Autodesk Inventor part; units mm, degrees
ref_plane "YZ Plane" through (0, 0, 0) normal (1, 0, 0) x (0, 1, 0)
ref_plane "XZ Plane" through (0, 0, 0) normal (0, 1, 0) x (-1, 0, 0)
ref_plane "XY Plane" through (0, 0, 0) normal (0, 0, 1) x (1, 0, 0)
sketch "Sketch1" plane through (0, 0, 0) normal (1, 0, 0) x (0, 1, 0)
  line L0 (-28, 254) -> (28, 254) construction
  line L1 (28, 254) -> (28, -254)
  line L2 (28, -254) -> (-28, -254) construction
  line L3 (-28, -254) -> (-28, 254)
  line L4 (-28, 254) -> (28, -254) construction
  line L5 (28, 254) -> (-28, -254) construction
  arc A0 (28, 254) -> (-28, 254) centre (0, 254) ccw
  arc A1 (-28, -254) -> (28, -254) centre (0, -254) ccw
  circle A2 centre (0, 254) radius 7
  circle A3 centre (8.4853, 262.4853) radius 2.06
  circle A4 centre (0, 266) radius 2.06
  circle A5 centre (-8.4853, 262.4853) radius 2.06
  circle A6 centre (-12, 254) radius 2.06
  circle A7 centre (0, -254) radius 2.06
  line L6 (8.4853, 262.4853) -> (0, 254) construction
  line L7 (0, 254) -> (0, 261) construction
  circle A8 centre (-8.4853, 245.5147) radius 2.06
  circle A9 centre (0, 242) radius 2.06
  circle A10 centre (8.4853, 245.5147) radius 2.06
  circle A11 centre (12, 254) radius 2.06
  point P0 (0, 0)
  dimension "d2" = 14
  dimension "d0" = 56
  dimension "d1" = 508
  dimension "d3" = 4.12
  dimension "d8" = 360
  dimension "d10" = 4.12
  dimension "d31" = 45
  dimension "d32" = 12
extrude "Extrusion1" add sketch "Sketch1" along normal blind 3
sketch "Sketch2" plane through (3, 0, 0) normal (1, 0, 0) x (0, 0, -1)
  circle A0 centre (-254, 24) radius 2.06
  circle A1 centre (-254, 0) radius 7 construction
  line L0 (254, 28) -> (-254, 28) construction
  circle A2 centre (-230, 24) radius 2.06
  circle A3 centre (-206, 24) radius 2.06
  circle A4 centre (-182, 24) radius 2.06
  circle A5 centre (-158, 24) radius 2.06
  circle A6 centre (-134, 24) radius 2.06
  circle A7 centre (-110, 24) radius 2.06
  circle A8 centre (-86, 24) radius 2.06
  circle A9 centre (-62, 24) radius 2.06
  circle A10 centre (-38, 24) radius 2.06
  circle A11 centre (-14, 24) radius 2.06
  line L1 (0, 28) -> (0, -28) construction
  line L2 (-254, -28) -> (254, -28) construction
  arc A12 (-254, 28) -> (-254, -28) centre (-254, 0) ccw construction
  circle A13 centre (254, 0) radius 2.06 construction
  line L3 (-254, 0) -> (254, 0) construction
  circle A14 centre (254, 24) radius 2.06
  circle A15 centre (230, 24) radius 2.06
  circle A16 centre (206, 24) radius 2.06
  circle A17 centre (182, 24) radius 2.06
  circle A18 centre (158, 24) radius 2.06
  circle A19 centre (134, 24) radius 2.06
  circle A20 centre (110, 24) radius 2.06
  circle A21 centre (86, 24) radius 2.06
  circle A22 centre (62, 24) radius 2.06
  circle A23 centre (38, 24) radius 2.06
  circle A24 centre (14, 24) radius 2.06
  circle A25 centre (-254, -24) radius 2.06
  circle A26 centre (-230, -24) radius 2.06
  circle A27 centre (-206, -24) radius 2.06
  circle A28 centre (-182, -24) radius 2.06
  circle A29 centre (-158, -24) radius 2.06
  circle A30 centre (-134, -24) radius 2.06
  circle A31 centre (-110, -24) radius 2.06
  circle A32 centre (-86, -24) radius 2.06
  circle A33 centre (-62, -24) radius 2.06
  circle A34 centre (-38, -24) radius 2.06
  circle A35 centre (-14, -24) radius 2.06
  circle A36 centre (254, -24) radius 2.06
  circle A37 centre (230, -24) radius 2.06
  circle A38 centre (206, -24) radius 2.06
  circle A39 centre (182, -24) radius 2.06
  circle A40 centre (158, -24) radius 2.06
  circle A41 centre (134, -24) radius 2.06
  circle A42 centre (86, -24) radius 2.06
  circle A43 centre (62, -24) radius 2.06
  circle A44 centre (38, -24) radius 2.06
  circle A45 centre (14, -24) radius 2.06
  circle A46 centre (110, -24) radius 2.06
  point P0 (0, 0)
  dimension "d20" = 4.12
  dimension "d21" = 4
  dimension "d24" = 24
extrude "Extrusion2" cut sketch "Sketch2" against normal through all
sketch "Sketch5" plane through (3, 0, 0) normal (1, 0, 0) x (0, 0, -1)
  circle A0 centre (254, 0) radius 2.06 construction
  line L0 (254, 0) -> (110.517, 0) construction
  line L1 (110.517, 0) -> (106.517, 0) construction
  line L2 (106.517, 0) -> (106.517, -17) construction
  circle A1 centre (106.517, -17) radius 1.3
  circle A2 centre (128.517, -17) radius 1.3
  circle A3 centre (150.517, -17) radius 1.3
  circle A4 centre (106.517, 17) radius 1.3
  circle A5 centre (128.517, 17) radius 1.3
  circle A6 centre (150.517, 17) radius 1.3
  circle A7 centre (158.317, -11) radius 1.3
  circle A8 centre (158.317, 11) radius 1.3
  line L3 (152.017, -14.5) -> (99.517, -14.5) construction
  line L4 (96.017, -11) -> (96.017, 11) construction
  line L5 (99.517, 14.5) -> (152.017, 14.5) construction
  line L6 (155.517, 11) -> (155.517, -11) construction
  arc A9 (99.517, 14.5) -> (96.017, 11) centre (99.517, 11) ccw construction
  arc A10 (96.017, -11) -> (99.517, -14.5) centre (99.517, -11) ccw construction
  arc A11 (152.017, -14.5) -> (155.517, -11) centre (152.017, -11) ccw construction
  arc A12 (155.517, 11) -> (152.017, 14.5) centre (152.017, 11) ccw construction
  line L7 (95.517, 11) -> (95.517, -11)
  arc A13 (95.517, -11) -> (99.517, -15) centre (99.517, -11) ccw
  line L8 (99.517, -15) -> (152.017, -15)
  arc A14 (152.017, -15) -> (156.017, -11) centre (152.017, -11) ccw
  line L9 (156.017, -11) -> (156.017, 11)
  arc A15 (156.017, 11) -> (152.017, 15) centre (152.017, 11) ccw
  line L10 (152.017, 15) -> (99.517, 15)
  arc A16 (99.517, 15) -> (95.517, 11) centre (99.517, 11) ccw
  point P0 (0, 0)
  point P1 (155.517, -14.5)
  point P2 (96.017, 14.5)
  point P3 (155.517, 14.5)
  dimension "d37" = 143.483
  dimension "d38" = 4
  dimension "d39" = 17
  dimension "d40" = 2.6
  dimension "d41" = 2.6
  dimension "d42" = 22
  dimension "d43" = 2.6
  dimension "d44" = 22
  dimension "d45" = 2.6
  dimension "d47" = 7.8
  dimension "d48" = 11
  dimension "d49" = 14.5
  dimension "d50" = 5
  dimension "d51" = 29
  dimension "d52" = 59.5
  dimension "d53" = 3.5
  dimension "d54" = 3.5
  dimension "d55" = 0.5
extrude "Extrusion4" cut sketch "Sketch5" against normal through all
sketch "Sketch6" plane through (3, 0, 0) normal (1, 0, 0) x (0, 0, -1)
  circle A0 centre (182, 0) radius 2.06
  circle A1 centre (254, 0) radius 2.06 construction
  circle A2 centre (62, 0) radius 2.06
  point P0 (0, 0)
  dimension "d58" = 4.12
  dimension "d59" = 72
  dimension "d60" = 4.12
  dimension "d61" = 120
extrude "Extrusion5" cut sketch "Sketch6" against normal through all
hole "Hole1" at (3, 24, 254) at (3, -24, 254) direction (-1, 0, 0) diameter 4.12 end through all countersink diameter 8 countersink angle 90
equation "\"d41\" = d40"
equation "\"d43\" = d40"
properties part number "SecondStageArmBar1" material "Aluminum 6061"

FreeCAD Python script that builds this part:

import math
import FreeCAD as App
import Part
import Sketcher

doc = App.newDocument("Part")
params = doc.addObject("Spreadsheet::Sheet", "Params")
for row, (alias, value) in enumerate([
    ("sketch1_diameter", "14 mm"),
    ("sketch1_radius", "28 mm"),
    ("sketch1_diameter2", "4.12 mm"),
    ("sketch1_height", "508 mm"),
    ("pad1_length", "3 mm"),
    ("sketch2_diameter", "4.12 mm"),
    ("sketch3_radius", "4 mm"),
    ("sketch3_diameter", "2.6 mm"),
    ("sketch3_width", "22 mm"),
    ("sketch3_height", "52.5 mm"),
    ("sketch4_diameter", "4.12 mm"),
    ("sketch5_diameter", "4.12 mm"),
    ("hole_diameter", "4.12 mm"),
    ("hole_csink_diameter", "8 mm"),
], start=1):
    params.set(f"A{row}", alias)
    params.set(f"B{row}", "=" + value)
    params.setAlias(f"B{row}", alias)

body = doc.addObject("PartDesign::Body", "Body")

sketch1 = doc.addObject("Sketcher::SketchObject", "Sketch")
body.addObject(sketch1)
sketch1.AttachmentSupport = (doc.YZ_Plane, [""])
sketch1.MapMode = "FlatFace"
sketch1.addGeometry([
    Part.LineSegment(App.Vector(28, -254, 0), App.Vector(28, 254, 0)),
    Part.ArcOfCircle(Part.Circle(App.Vector(0, 254, 0), App.Vector(0, 0, 1), 28), math.radians(0), math.radians(180)),
    Part.LineSegment(App.Vector(-28, 254, 0), App.Vector(-28, -254, 0)),
    Part.ArcOfCircle(Part.Circle(App.Vector(0, -254, 0), App.Vector(0, 0, 1), 28), math.radians(180), math.radians(360)),
    Part.Circle(App.Vector(0, -254, 0), App.Vector(0, 0, 1), 2.1),
    Part.Circle(App.Vector(-8.5, 245.5, 0), App.Vector(0, 0, 1), 2.1),
    Part.Circle(App.Vector(-12, 254, 0), App.Vector(0, 0, 1), 2.1),
    Part.Circle(App.Vector(-8.5, 262.5, 0), App.Vector(0, 0, 1), 2.1),
    Part.Circle(App.Vector(0, 242, 0), App.Vector(0, 0, 1), 2.1),
    Part.Circle(App.Vector(0, 254, 0), App.Vector(0, 0, 1), 7),
    Part.Circle(App.Vector(0, 266, 0), App.Vector(0, 0, 1), 2.1),
    Part.Circle(App.Vector(8.5, 245.5, 0), App.Vector(0, 0, 1), 2.1),
    Part.Circle(App.Vector(8.5, 262.5, 0), App.Vector(0, 0, 1), 2.1),
    Part.Circle(App.Vector(12, 254, 0), App.Vector(0, 0, 1), 2.1),
], False)
sketch1.addConstraint([
    Sketcher.Constraint("Tangent", 0, 2, 1, 1),
    Sketcher.Constraint("Tangent", 1, 2, 2, 1),
    Sketcher.Constraint("Tangent", 2, 2, 3, 1),
    Sketcher.Constraint("Tangent", 3, 2, 0, 1),
    Sketcher.Constraint("Vertical", 0),
    Sketcher.Constraint("Vertical", 2),
    Sketcher.Constraint("Coincident", 4, 3, 3, 3),
    Sketcher.Constraint("Coincident", 9, 3, 1, 3),
    Sketcher.Constraint("Equal", 4, 5),
    Sketcher.Constraint("Equal", 5, 6),
    Sketcher.Constraint("Equal", 6, 7),
    Sketcher.Constraint("Equal", 7, 8),
    Sketcher.Constraint("Equal", 8, 10),
    Sketcher.Constraint("Equal", 10, 11),
    Sketcher.Constraint("Equal", 11, 12),
    Sketcher.Constraint("Equal", 12, 13),
    Sketcher.Constraint("Symmetric", 1, 3, 3, 3, -1, 1),
    Sketcher.Constraint("Symmetric", 5, 3, 11, 3, -2),
    Sketcher.Constraint("Symmetric", 7, 3, 12, 3, -2),
    Sketcher.Constraint("Symmetric", 6, 3, 13, 3, -2),
    Sketcher.Constraint("PointOnObject", 8, 3, -2),
    Sketcher.Constraint("PointOnObject", 10, 3, -2),
    Sketcher.Constraint("Horizontal", 1, 3, 6, 3),
    Sketcher.Constraint("Vertical", 5, 3, 7, 3),
    Sketcher.Constraint("Diameter", 9, 14.0),
    Sketcher.Constraint("Radius", 1, 28.0),
    Sketcher.Constraint("Diameter", 4, 4.12),
    Sketcher.Constraint("DistanceY", 0, 1, 0, 2, 508.0),
    Sketcher.Constraint("DistanceX", 6, 3, -1, 1, 12.0),
    Sketcher.Constraint("DistanceY", 8, 3, 1, 3, 12.0),
    Sketcher.Constraint("DistanceY", 1, 3, 10, 3, 12.0),
    Sketcher.Constraint("DistanceX", 5, 3, -1, 1, 8.4853),
    Sketcher.Constraint("DistanceY", -1, 1, 5, 3, 245.5147),
    Sketcher.Constraint("DistanceY", -1, 1, 7, 3, 262.4853),
])
sketch1.setExpression("Constraints[24]", "Params.sketch1_diameter")
sketch1.setExpression("Constraints[25]", "Params.sketch1_radius")
sketch1.setExpression("Constraints[26]", "Params.sketch1_diameter2")
sketch1.setExpression("Constraints[27]", "Params.sketch1_height")
pad1 = doc.addObject("PartDesign::Pad", "Pad")
body.addObject(pad1)
pad1.Profile = sketch1
pad1.setExpression("Length", "Params.pad1_length")

sketch2 = doc.addObject("Sketcher::SketchObject", "Sketch001")
body.addObject(sketch2)
sketch2.AttachmentSupport = (doc.YZ_Plane, [""])
sketch2.MapMode = "FlatFace"
sketch2.AttachmentOffset = App.Placement(App.Vector(0, 0, 3), App.Rotation())
sketch2.addGeometry([
    Part.Circle(App.Vector(24, 254, 0), App.Vector(0, 0, 1), 2.1),
    Part.Circle(App.Vector(24, 230, 0), App.Vector(0, 0, 1), 2.1),
    Part.Circle(App.Vector(24, 206, 0), App.Vector(0, 0, 1), 2.1),
    Part.Circle(App.Vector(24, 182, 0), App.Vector(0, 0, 1), 2.1),
    Part.Circle(App.Vector(24, 158, 0), App.Vector(0, 0, 1), 2.1),
    Part.Circle(App.Vector(24, 134, 0), App.Vector(0, 0, 1), 2.1),
    Part.Circle(App.Vector(24, 110, 0), App.Vector(0, 0, 1), 2.1),
    Part.Circle(App.Vector(24, 86, 0), App.Vector(0, 0, 1), 2.1),
    Part.Circle(App.Vector(24, 62, 0), App.Vector(0, 0, 1), 2.1),
    Part.Circle(App.Vector(24, 38, 0), App.Vector(0, 0, 1), 2.1),
    Part.Circle(App.Vector(24, 14, 0), App.Vector(0, 0, 1), 2.1),
    Part.Circle(App.Vector(24, -254, 0), App.Vector(0, 0, 1), 2.1),
    Part.Circle(App.Vector(24, -230, 0), App.Vector(0, 0, 1), 2.1),
    Part.Circle(App.Vector(24, -206, 0), App.Vector(0, 0, 1), 2.1),
    Part.Circle(App.Vector(24, -182, 0), App.Vector(0, 0, 1), 2.1),
    Part.Circle(App.Vector(24, -158, 0), App.Vector(0, 0, 1), 2.1),
    Part.Circle(App.Vector(24, -134, 0), App.Vector(0, 0, 1), 2.1),
    Part.Circle(App.Vector(24, -110, 0), App.Vector(0, 0, 1), 2.1),
    Part.Circle(App.Vector(24, -86, 0), App.Vector(0, 0, 1), 2.1),
    Part.Circle(App.Vector(24, -62, 0), App.Vector(0, 0, 1), 2.1),
    Part.Circle(App.Vector(24, -38, 0), App.Vector(0, 0, 1), 2.1),
    Part.Circle(App.Vector(24, -14, 0), App.Vector(0, 0, 1), 2.1),
    Part.Circle(App.Vector(-24, 254, 0), App.Vector(0, 0, 1), 2.1),
    Part.Circle(App.Vector(-24, 230, 0), App.Vector(0, 0, 1), 2.1),
    Part.Circle(App.Vector(-24, 206, 0), App.Vector(0, 0, 1), 2.1),
    Part.Circle(App.Vector(-24, 182, 0), App.Vector(0, 0, 1), 2.1),
    Part.Circle(App.Vector(-24, 158, 0), App.Vector(0, 0, 1), 2.1),
    Part.Circle(App.Vector(-24, 134, 0), App.Vector(0, 0, 1), 2.1),
    Part.Circle(App.Vector(-24, 110, 0), App.Vector(0, 0, 1), 2.1),
    Part.Circle(App.Vector(-24, 86, 0), App.Vector(0, 0, 1), 2.1),
    Part.Circle(App.Vector(-24, 62, 0), App.Vector(0, 0, 1), 2.1),
    Part.Circle(App.Vector(-24, 38, 0), App.Vector(0, 0, 1), 2.1),
    Part.Circle(App.Vector(-24, 14, 0), App.Vector(0, 0, 1), 2.1),
    Part.Circle(App.Vector(-24, -254, 0), App.Vector(0, 0, 1), 2.1),
    Part.Circle(App.Vector(-24, -230, 0), App.Vector(0, 0, 1), 2.1),
    Part.Circle(App.Vector(-24, -206, 0), App.Vector(0, 0, 1), 2.1),
    Part.Circle(App.Vector(-24, -182, 0), App.Vector(0, 0, 1), 2.1),
    Part.Circle(App.Vector(-24, -158, 0), App.Vector(0, 0, 1), 2.1),
    Part.Circle(App.Vector(-24, -134, 0), App.Vector(0, 0, 1), 2.1),
    Part.Circle(App.Vector(-24, -86, 0), App.Vector(0, 0, 1), 2.1),
    Part.Circle(App.Vector(-24, -62, 0), App.Vector(0, 0, 1), 2.1),
    Part.Circle(App.Vector(-24, -38, 0), App.Vector(0, 0, 1), 2.1),
    Part.Circle(App.Vector(-24, -14, 0), App.Vector(0, 0, 1), 2.1),
    Part.Circle(App.Vector(-24, -110, 0), App.Vector(0, 0, 1), 2.1),
], False)
sketch2.addConstraint([
    Sketcher.Constraint("Equal", 0, 1),
    Sketcher.Constraint("Equal", 1, 2),
    Sketcher.Constraint("Equal", 2, 3),
    Sketcher.Constraint("Equal", 3, 4),
    Sketcher.Constraint("Equal", 4, 5),
    Sketcher.Constraint("Equal", 5, 6),
    Sketcher.Constraint("Equal", 6, 7),
    Sketcher.Constraint("Equal", 7, 8),
    Sketcher.Constraint("Equal", 8, 9),
    Sketcher.Constraint("Equal", 9, 10),
    Sketcher.Constraint("Equal", 10, 11),
    Sketcher.Constraint("Equal", 11, 12),
    Sketcher.Constraint("Equal", 12, 13),
    Sketcher.Constraint("Equal", 13, 14),
    Sketcher.Constraint("Equal", 14, 15),
    Sketcher.Constraint("Equal", 15, 16),
    Sketcher.Constraint("Equal", 16, 17),
    Sketcher.Constraint("Equal", 17, 18),
    Sketcher.Constraint("Equal", 18, 19),
    Sketcher.Constraint("Equal", 19, 20),
    Sketcher.Constraint("Equal", 20, 21),
    Sketcher.Constraint("Equal", 21, 22),
    Sketcher.Constraint("Equal", 22, 23),
    Sketcher.Constraint("Equal", 23, 24),
    Sketcher.Constraint("Equal", 24, 25),
    Sketcher.Constraint("Equal", 25, 26),
    Sketcher.Constraint("Equal", 26, 27),
    Sketcher.Constraint("Equal", 27, 28),
    Sketcher.Constraint("Equal", 28, 29),
    Sketcher.Constraint("Equal", 29, 30),
    Sketcher.Constraint("Equal", 30, 31),
    Sketcher.Constraint("Equal", 31, 32),
    Sketcher.Constraint("Equal", 32, 33),
    Sketcher.Constraint("Equal", 33, 34),
    Sketcher.Constraint("Equal", 34, 35),
    Sketcher.Constraint("Equal", 35, 36),
    Sketcher.Constraint("Equal", 36, 37),
    Sketcher.Constraint("Equal", 37, 38),
    Sketcher.Constraint("Equal", 38, 39),
    Sketcher.Constraint("Equal", 39, 40),
    Sketcher.Constraint("Equal", 40, 41),
    Sketcher.Constraint("Equal", 41, 42),
    Sketcher.Constraint("Equal", 42, 43),
    Sketcher.Constraint("Symmetric", 11, 3, 22, 3, -1, 1),
    Sketcher.Constraint("Symmetric", 12, 3, 23, 3, -1, 1),
    Sketcher.Constraint("Symmetric", 13, 3, 24, 3, -1, 1),
    Sketcher.Constraint("Symmetric", 14, 3, 25, 3, -1, 1),
    Sketcher.Constraint("Symmetric", 15, 3, 26, 3, -1, 1),
    Sketcher.Constraint("Symmetric", 16, 3, 27, 3, -1, 1),
    Sketcher.Constraint("Symmetric", 17, 3, 28, 3, -1, 1),
    Sketcher.Constraint("Symmetric", 18, 3, 29, 3, -1, 1),
    Sketcher.Constraint("Symmetric", 19, 3, 30, 3, -1, 1),
    Sketcher.Constraint("Symmetric", 20, 3, 31, 3, -1, 1),
    Sketcher.Constraint("Symmetric", 21, 3, 32, 3, -1, 1),
    Sketcher.Constraint("Symmetric", 0, 3, 33, 3, -1, 1),
    Sketcher.Constraint("Symmetric", 1, 3, 34, 3, -1, 1),
    Sketcher.Constraint("Symmetric", 2, 3, 35, 3, -1, 1),
    Sketcher.Constraint("Symmetric", 3, 3, 36, 3, -1, 1),
    Sketcher.Constraint("Symmetric", 4, 3, 37, 3, -1, 1),
    Sketcher.Constraint("Symmetric", 5, 3, 38, 3, -1, 1),
    Sketcher.Constraint("Symmetric", 7, 3, 39, 3, -1, 1),
    Sketcher.Constraint("Symmetric", 8, 3, 40, 3, -1, 1),
    Sketcher.Constraint("Symmetric", 9, 3, 41, 3, -1, 1),
    Sketcher.Constraint("Symmetric", 10, 3, 42, 3, -1, 1),
    Sketcher.Constraint("Symmetric", 6, 3, 43, 3, -1, 1),
    Sketcher.Constraint("Symmetric", 0, 3, 22, 3, -2),
    Sketcher.Constraint("Symmetric", 1, 3, 23, 3, -2),
    Sketcher.Constraint("Symmetric", 2, 3, 24, 3, -2),
    Sketcher.Constraint("Symmetric", 3, 3, 25, 3, -2),
    Sketcher.Constraint("Symmetric", 4, 3, 26, 3, -2),
    Sketcher.Constraint("Symmetric", 5, 3, 27, 3, -2),
    Sketcher.Constraint("Symmetric", 6, 3, 28, 3, -2),
    Sketcher.Constraint("Symmetric", 7, 3, 29, 3, -2),
    Sketcher.Constraint("Symmetric", 8, 3, 30, 3, -2),
    Sketcher.Constraint("Symmetric", 9, 3, 31, 3, -2),
    Sketcher.Constraint("Symmetric", 10, 3, 32, 3, -2),
    Sketcher.Constraint("Vertical", 0, 3, 1, 3),
    Sketcher.Constraint("Vertical", 1, 3, 2, 3),
    Sketcher.Constraint("Vertical", 2, 3, 3, 3),
    Sketcher.Constraint("Vertical", 3, 3, 4, 3),
    Sketcher.Constraint("Vertical", 4, 3, 5, 3),
    Sketcher.Constraint("Vertical", 5, 3, 6, 3),
    Sketcher.Constraint("Vertical", 6, 3, 7, 3),
    Sketcher.Constraint("Vertical", 7, 3, 8, 3),
    Sketcher.Constraint("Vertical", 8, 3, 9, 3),
    Sketcher.Constraint("Vertical", 9, 3, 10, 3),
    Sketcher.Constraint("Diameter", 0, 4.12),
    Sketcher.Constraint("DistanceX", -1, 1, 0, 3, 24.0),
    Sketcher.Constraint("DistanceY", 1, 3, 0, 3, 24.0),
    Sketcher.Constraint("DistanceY", 2, 3, 1, 3, 24.0),
    Sketcher.Constraint("DistanceY", 3, 3, 2, 3, 24.0),
    Sketcher.Constraint("DistanceY", 4, 3, 3, 3, 24.0),
    Sketcher.Constraint("DistanceY", 5, 3, 4, 3, 24.0),
    Sketcher.Constraint("DistanceY", 6, 3, 5, 3, 24.0),
    Sketcher.Constraint("DistanceY", 7, 3, 6, 3, 24.0),
    Sketcher.Constraint("DistanceY", 8, 3, 7, 3, 24.0),
    Sketcher.Constraint("DistanceY", 9, 3, 8, 3, 24.0),
    Sketcher.Constraint("DistanceY", 10, 3, 9, 3, 24.0),
    Sketcher.Constraint("DistanceY", -1, 1, 0, 3, 254.0),
])
sketch2.setExpression("Constraints[86]", "Params.sketch2_diameter")
pocket1 = doc.addObject("PartDesign::Pocket", "Pocket")
body.addObject(pocket1)
pocket1.Profile = sketch2
pocket1.Type = "ThroughAll"

sketch3 = doc.addObject("Sketcher::SketchObject", "Sketch002")
body.addObject(sketch3)
sketch3.AttachmentSupport = (doc.YZ_Plane, [""])
sketch3.MapMode = "FlatFace"
sketch3.AttachmentOffset = App.Placement(App.Vector(0, 0, 3), App.Rotation())
sketch3.addGeometry([
    Part.Circle(App.Vector(-17, -106.5, 0), App.Vector(0, 0, 1), 1.3),
    Part.Circle(App.Vector(-17, -128.5, 0), App.Vector(0, 0, 1), 1.3),
    Part.Circle(App.Vector(-17, -150.5, 0), App.Vector(0, 0, 1), 1.3),
    Part.Circle(App.Vector(17, -106.5, 0), App.Vector(0, 0, 1), 1.3),
    Part.Circle(App.Vector(17, -128.5, 0), App.Vector(0, 0, 1), 1.3),
    Part.Circle(App.Vector(17, -150.5, 0), App.Vector(0, 0, 1), 1.3),
    Part.Circle(App.Vector(-11, -158.3, 0), App.Vector(0, 0, 1), 1.3),
    Part.Circle(App.Vector(11, -158.3, 0), App.Vector(0, 0, 1), 1.3),
    Part.ArcOfCircle(Part.Circle(App.Vector(11, -99.5, 0), App.Vector(0, 0, 1), 4), math.radians(0), math.radians(90)),
    Part.LineSegment(App.Vector(11, -95.5, 0), App.Vector(-11, -95.5, 0)),
    Part.ArcOfCircle(Part.Circle(App.Vector(-11, -99.5, 0), App.Vector(0, 0, 1), 4), math.radians(90), math.radians(180)),
    Part.LineSegment(App.Vector(-15, -99.5, 0), App.Vector(-15, -152, 0)),
    Part.ArcOfCircle(Part.Circle(App.Vector(-11, -152, 0), App.Vector(0, 0, 1), 4), math.radians(180), math.radians(270)),
    Part.LineSegment(App.Vector(-11, -156, 0), App.Vector(11, -156, 0)),
    Part.ArcOfCircle(Part.Circle(App.Vector(11, -152, 0), App.Vector(0, 0, 1), 4), math.radians(-90), math.radians(0)),
    Part.LineSegment(App.Vector(15, -152, 0), App.Vector(15, -99.5, 0)),
], False)
sketch3.addConstraint([
    Sketcher.Constraint("Tangent", 8, 2, 9, 1),
    Sketcher.Constraint("Tangent", 9, 2, 10, 1),
    Sketcher.Constraint("Tangent", 10, 2, 11, 1),
    Sketcher.Constraint("Tangent", 11, 2, 12, 1),
    Sketcher.Constraint("Tangent", 12, 2, 13, 1),
    Sketcher.Constraint("Tangent", 13, 2, 14, 1),
    Sketcher.Constraint("Tangent", 14, 2, 15, 1),
    Sketcher.Constraint("Tangent", 15, 2, 8, 1),
    Sketcher.Constraint("Horizontal", 9),
    Sketcher.Constraint("Vertical", 11),
    Sketcher.Constraint("Horizontal", 13),
    Sketcher.Constraint("Vertical", 15),
    Sketcher.Constraint("Equal", 0, 1),
    Sketcher.Constraint("Equal", 1, 2),
    Sketcher.Constraint("Equal", 2, 3),
    Sketcher.Constraint("Equal", 3, 4),
    Sketcher.Constraint("Equal", 4, 5),
    Sketcher.Constraint("Equal", 5, 6),
    Sketcher.Constraint("Equal", 6, 7),
    Sketcher.Constraint("Equal", 8, 10),
    Sketcher.Constraint("Equal", 10, 12),
    Sketcher.Constraint("Equal", 12, 14),
    Sketcher.Constraint("Symmetric", 0, 3, 3, 3, -2),
    Sketcher.Constraint("Symmetric", 1, 3, 4, 3, -2),
    Sketcher.Constraint("Symmetric", 2, 3, 5, 3, -2),
    Sketcher.Constraint("Symmetric", 6, 3, 7, 3, -2),
    Sketcher.Constraint("Vertical", 0, 3, 1, 3),
    Sketcher.Constraint("Vertical", 1, 3, 2, 3),
    Sketcher.Constraint("Vertical", 7, 3, 8, 3),
    Sketcher.Constraint("Vertical", 6, 3, 10, 3),
    Sketcher.Constraint("Radius", 8, 4.0),
    Sketcher.Constraint("Diameter", 0, 2.6),
    Sketcher.Constraint("DistanceX", 9, 2, 9, 1, 22.0),
    Sketcher.Constraint("DistanceX", 0, 3, -1, 1, 17.0),
    Sketcher.Constraint("DistanceY", 1, 3, 0, 3, 22.0),
    Sketcher.Constraint("DistanceY", 2, 3, 1, 3, 22.0),
    Sketcher.Constraint("DistanceY", 4, 3, 8, 3, 29.0),
    Sketcher.Constraint("DistanceY", 6, 3, 2, 3, 7.8),
    Sketcher.Constraint("DistanceY", 11, 2, 11, 1, 52.5),
    Sketcher.Constraint("DistanceY", 0, 3, -1, 1, 106.517),
])
sketch3.setExpression("Constraints[30]", "Params.sketch3_radius")
sketch3.setExpression("Constraints[31]", "Params.sketch3_diameter")
sketch3.setExpression("Constraints[32]", "Params.sketch3_width")
sketch3.setExpression("Constraints[38]", "Params.sketch3_height")
pocket2 = doc.addObject("PartDesign::Pocket", "Pocket001")
body.addObject(pocket2)
pocket2.Profile = sketch3
pocket2.Type = "ThroughAll"

sketch4 = doc.addObject("Sketcher::SketchObject", "Sketch003")
body.addObject(sketch4)
sketch4.AttachmentSupport = (doc.YZ_Plane, [""])
sketch4.MapMode = "FlatFace"
sketch4.AttachmentOffset = App.Placement(App.Vector(0, 0, 3), App.Rotation())
sketch4.addGeometry([
    Part.Circle(App.Vector(0, -182, 0), App.Vector(0, 0, 1), 2.1),
    Part.Circle(App.Vector(0, -62, 0), App.Vector(0, 0, 1), 2.1),
], False)
sketch4.addConstraint([
    Sketcher.Constraint("Equal", 0, 1),
    Sketcher.Constraint("PointOnObject", 0, 3, -2),
    Sketcher.Constraint("PointOnObject", 1, 3, -2),
    Sketcher.Constraint("Diameter", 0, 4.12),
    Sketcher.Constraint("DistanceY", 0, 3, 1, 3, 120.0),
    Sketcher.Constraint("DistanceY", 0, 3, -1, 1, 182.0),
])
sketch4.setExpression("Constraints[3]", "Params.sketch4_diameter")
pocket3 = doc.addObject("PartDesign::Pocket", "Pocket002")
body.addObject(pocket3)
pocket3.Profile = sketch4
pocket3.Type = "ThroughAll"

sketch5 = doc.addObject("Sketcher::SketchObject", "Sketch004")
body.addObject(sketch5)
sketch5.AttachmentSupport = (doc.YZ_Plane, [""])
sketch5.MapMode = "FlatFace"
sketch5.AttachmentOffset = App.Placement(App.Vector(0, 0, 3), App.Rotation())
sketch5.addGeometry([
    Part.Circle(App.Vector(24, 254, 0), App.Vector(0, 0, 1), 2.1),
    Part.Circle(App.Vector(-24, 254, 0), App.Vector(0, 0, 1), 2.1),
], False)
sketch5.addConstraint([
    Sketcher.Constraint("Equal", 0, 1),
    Sketcher.Constraint("Symmetric", 0, 3, 1, 3, -2),
    Sketcher.Constraint("Diameter", 0, 4.12),
    Sketcher.Constraint("DistanceX", -1, 1, 0, 3, 24.0),
    Sketcher.Constraint("DistanceY", -1, 1, 0, 3, 254.0),
])
sketch5.setExpression("Constraints[2]", "Params.sketch5_diameter")
doc.recompute()
hole = doc.addObject("PartDesign::Hole", "Hole")
body.addObject(hole)
hole.Profile = sketch5
hole.ThreadType = "None"
hole.setExpression("Diameter", "Params.hole_diameter")
hole.DepthType = "ThroughAll"
hole.HoleCutType = "Countersink"
hole.setExpression("HoleCutDiameter", "Params.hole_csink_diameter")
hole.HoleCutCountersinkAngle = 90

doc.recompute()
